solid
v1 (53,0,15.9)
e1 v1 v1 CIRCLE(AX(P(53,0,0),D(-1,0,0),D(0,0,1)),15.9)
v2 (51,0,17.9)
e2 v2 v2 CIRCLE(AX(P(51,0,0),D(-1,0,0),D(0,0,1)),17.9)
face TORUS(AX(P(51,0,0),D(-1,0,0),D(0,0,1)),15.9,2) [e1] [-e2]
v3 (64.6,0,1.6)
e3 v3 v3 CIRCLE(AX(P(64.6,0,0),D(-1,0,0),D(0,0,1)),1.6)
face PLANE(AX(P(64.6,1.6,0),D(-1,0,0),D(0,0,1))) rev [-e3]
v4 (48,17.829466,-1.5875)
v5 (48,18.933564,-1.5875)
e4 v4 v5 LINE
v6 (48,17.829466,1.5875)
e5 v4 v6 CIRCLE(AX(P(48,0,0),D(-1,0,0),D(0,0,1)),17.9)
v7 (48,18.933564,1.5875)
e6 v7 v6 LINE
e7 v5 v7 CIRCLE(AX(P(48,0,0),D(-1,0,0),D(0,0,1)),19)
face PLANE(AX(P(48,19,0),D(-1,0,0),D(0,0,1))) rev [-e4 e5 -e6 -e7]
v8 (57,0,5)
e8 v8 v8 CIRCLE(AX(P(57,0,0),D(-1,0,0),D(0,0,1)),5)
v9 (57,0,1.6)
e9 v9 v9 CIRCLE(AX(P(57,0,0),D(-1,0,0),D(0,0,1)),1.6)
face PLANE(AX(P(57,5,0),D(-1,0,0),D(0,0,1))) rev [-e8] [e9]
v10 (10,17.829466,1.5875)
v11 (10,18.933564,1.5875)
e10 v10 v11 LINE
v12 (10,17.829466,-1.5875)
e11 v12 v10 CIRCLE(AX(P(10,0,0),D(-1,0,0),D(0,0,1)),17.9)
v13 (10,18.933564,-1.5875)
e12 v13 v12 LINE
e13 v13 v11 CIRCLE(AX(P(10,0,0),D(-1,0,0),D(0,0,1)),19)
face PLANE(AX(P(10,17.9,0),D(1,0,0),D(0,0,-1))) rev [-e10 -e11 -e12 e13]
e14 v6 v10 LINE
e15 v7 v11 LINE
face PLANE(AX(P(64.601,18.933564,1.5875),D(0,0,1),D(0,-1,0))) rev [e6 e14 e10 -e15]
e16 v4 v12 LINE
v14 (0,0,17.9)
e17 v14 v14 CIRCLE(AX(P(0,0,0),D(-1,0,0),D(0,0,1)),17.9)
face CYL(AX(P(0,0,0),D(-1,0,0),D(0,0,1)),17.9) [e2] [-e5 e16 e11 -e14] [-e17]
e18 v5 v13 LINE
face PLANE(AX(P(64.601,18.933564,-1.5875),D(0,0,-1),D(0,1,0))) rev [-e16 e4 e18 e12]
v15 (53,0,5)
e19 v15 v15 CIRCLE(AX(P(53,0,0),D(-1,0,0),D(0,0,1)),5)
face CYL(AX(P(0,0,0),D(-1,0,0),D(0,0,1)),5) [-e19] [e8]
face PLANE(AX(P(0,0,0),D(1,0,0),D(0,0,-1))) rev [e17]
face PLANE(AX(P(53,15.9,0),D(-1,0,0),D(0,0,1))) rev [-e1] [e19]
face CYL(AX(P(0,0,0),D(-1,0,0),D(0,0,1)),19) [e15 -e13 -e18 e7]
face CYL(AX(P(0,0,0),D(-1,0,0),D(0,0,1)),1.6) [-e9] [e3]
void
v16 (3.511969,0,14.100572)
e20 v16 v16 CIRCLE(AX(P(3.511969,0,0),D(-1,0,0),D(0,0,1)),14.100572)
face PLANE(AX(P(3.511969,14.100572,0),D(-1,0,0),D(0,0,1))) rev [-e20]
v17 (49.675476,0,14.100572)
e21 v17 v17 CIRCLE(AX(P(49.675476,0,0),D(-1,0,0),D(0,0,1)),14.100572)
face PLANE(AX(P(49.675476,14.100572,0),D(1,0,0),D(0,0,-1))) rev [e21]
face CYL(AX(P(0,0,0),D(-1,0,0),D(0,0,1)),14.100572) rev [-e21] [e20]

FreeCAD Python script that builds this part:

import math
import FreeCAD as App
import Part
import Sketcher
from FreeCAD import Vector
Q = App.Units.Quantity

doc = App.newDocument("Part")
body = doc.addObject("PartDesign::Body", "Body")

sketch1 = body.newObject("Sketcher::SketchObject", "Sketch")
sketch1.AttachmentSupport = (doc.getObject("XY_Plane"), [""])
sketch1.MapMode = "FlatFace"
sketch1.addGeometry([
    Part.LineSegment(Vector(0, 17.9, 0), Vector(0, 0, 0)),
    Part.LineSegment(Vector(0, 0, 0), Vector(3.5, 0, 0)),
    Part.LineSegment(Vector(3.5, 0, 0), Vector(3.5, 14.1, 0)),
    Part.LineSegment(Vector(3.5, 14.1, 0), Vector(49.7, 14.1, 0)),
    Part.LineSegment(Vector(49.7, 14.1, 0), Vector(49.7, 0, 0)),
    Part.LineSegment(Vector(49.7, 0, 0), Vector(64.6, 0, 0)),
    Part.LineSegment(Vector(64.6, 0, 0), Vector(64.6, 1.6, 0)),
    Part.LineSegment(Vector(64.6, 1.6, 0), Vector(57, 1.6, 0)),
    Part.LineSegment(Vector(57, 1.6, 0), Vector(57, 5, 0)),
    Part.LineSegment(Vector(57, 5, 0), Vector(53, 5, 0)),
    Part.LineSegment(Vector(53, 5, 0), Vector(53, 15.9, 0)),
    Part.ArcOfCircle(Part.Circle(Vector(51, 15.9, 0), Vector(0, 0, 1), 2), math.radians(0), math.radians(90)),
    Part.LineSegment(Vector(51, 17.9, 0), Vector(48, 17.9, 0)),
    Part.LineSegment(Vector(48, 17.9, 0), Vector(48, 19, 0)),
    Part.LineSegment(Vector(48, 19, 0), Vector(10, 19, 0)),
    Part.LineSegment(Vector(10, 19, 0), Vector(10, 17.9, 0)),
    Part.LineSegment(Vector(10, 17.9, 0), Vector(0, 17.9, 0)),
], False)
sketch1.addConstraint([
    Sketcher.Constraint("Coincident", 0, 2, 1, 1),
    Sketcher.Constraint("Coincident", 1, 2, 2, 1),
    Sketcher.Constraint("Coincident", 2, 2, 3, 1),
    Sketcher.Constraint("Coincident", 3, 2, 4, 1),
    Sketcher.Constraint("Coincident", 4, 2, 5, 1),
    Sketcher.Constraint("Coincident", 5, 2, 6, 1),
    Sketcher.Constraint("Coincident", 6, 2, 7, 1),
    Sketcher.Constraint("Coincident", 7, 2, 8, 1),
    Sketcher.Constraint("Coincident", 8, 2, 9, 1),
    Sketcher.Constraint("Coincident", 9, 2, 10, 1),
    Sketcher.Constraint("Tangent", 10, 2, 11, 1),
    Sketcher.Constraint("Tangent", 11, 2, 12, 1),
    Sketcher.Constraint("Coincident", 12, 2, 13, 1),
    Sketcher.Constraint("Coincident", 13, 2, 14, 1),
    Sketcher.Constraint("Coincident", 14, 2, 15, 1),
    Sketcher.Constraint("Coincident", 15, 2, 16, 1),
    Sketcher.Constraint("Coincident", 16, 2, 0, 1),
    Sketcher.Constraint("Vertical", 0),
    Sketcher.Constraint("Horizontal", 1),
    Sketcher.Constraint("Vertical", 2),
    Sketcher.Constraint("Horizontal", 3),
    Sketcher.Constraint("Vertical", 4),
    Sketcher.Constraint("Horizontal", 5),
    Sketcher.Constraint("Vertical", 6),
    Sketcher.Constraint("Horizontal", 7),
    Sketcher.Constraint("Vertical", 8),
    Sketcher.Constraint("Horizontal", 9),
    Sketcher.Constraint("Vertical", 10),
    Sketcher.Constraint("Horizontal", 12),
    Sketcher.Constraint("Vertical", 13),
    Sketcher.Constraint("Horizontal", 14),
    Sketcher.Constraint("Vertical", 15),
    Sketcher.Constraint("Horizontal", 16),
    Sketcher.Constraint("Coincident", 0, 2, -1, 1),
    Sketcher.Constraint("PointOnObject", 4, 2, -1),
    Sketcher.Constraint("Horizontal", 12, 2, 15, 2),
    Sketcher.Constraint("Radius", 11, Q("2 mm")),
    Sketcher.Constraint("DistanceX", 9, 2, 9, 1, Q("4 mm")),
    Sketcher.Constraint("DistanceX", 12, 2, 12, 1, Q("3 mm")),
    Sketcher.Constraint("DistanceX", 14, 2, 14, 1, Q("38 mm")),
    Sketcher.Constraint("DistanceX", 16, 2, 16, 1, Q("10 mm")),
    Sketcher.Constraint("DistanceX", 7, 2, 7, 1, Q("7.6 mm")),
    Sketcher.Constraint("DistanceY", 0, 2, 0, 1, Q("17.9 mm")),
    Sketcher.Constraint("DistanceY", 6, 1, 6, 2, Q("1.6 mm")),
    Sketcher.Constraint("DistanceY", 8, 1, 8, 2, Q("3.4 mm")),
    Sketcher.Constraint("DistanceY", 13, 1, 13, 2, Q("1.1 mm")),
    Sketcher.Constraint("DistanceX", 1, 1, 1, 2, Q("3.511969 mm")),
    Sketcher.Constraint("DistanceY", 2, 1, 2, 2, Q("14.100572 mm")),
    Sketcher.Constraint("DistanceX", 3, 1, 3, 2, Q("46.163507 mm")),
])
revolution = body.newObject("PartDesign::Revolution", "Revolution")
revolution.Profile = sketch1
revolution.ReferenceAxis = (sketch1, ["H_Axis"])
revolution.Angle = 360

sketch2 = body.newObject("Sketcher::SketchObject", "Sketch001")
sketch2.AttachmentSupport = (doc.getObject("YZ_Plane"), [""])
sketch2.MapMode = "FlatFace"
sketch2.AttachmentOffset = App.Placement(Vector(0, 0, 10), App.Rotation())
sketch2.addGeometry([
    Part.LineSegment(Vector(17.8, 1.6, 0), Vector(18.9, 1.6, 0)),
    Part.ArcOfCircle(Part.Circle(Vector(0, 0, 0), Vector(0, 0, 1), 19), math.radians(-4.79), math.radians(4.79)),
    Part.LineSegment(Vector(18.9, -1.6, 0), Vector(17.8, -1.6, 0)),
    Part.ArcOfCircle(Part.Circle(Vector(0, 0, 0), Vector(0, 0, 1), 17.9), math.radians(-5.09), math.radians(5.09)),
], False)
sketch2.addConstraint([
    Sketcher.Constraint("Coincident", 0, 2, 1, 2),
    Sketcher.Constraint("Coincident", 1, 1, 2, 1),
    Sketcher.Constraint("Coincident", 2, 2, 3, 1),
    Sketcher.Constraint("Coincident", 3, 2, 0, 1),
    Sketcher.Constraint("Horizontal", 0),
    Sketcher.Constraint("Horizontal", 2),
    Sketcher.Constraint("Coincident", 1, 3, -1, 1),
    Sketcher.Constraint("Coincident", 3, 3, -1, 1),
    Sketcher.Constraint("Vertical", 0, 2, 1, 1),
    Sketcher.Constraint("Radius", 1, Q("19 mm")),
    Sketcher.Constraint("Radius", 3, Q("17.9 mm")),
    Sketcher.Constraint("DistanceY", 1, 1, 0, 2, Q("3.175 mm")),
])
pocket1 = body.newObject("PartDesign::Pocket", "Pocket")
pocket1.Profile = sketch2
pocket1.Type = "UpToFirst"
pocket1.Reversed = True

doc.recompute()
